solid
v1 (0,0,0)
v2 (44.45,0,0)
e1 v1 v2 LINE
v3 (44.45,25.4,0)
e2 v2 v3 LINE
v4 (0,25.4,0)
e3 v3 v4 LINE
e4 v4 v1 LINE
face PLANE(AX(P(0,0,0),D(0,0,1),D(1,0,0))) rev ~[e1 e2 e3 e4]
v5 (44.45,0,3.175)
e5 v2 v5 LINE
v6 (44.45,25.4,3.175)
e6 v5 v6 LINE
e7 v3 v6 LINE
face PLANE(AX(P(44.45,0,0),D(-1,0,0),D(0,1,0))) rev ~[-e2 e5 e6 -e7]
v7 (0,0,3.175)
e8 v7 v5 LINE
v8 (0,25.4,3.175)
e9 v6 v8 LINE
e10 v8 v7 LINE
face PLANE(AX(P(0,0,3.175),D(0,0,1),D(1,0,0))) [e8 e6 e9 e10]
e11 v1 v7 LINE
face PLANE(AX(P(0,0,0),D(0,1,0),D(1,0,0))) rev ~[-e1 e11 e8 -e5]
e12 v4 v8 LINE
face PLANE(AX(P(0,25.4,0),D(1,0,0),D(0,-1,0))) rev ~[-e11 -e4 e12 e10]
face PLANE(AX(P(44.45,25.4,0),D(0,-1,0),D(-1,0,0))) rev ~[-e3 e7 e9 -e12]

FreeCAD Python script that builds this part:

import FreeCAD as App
import Part
import Sketcher
Q = App.Units.Quantity

doc = App.newDocument("Part")
body = doc.addObject("PartDesign::Body", "Body")

# Sketch on XY plane
sketch1 = body.newObject("Sketcher::SketchObject", "Sketch")
sketch1.AttachmentSupport = (doc.getObject("XY_Plane"), [""])
sketch1.MapMode = "FlatFace"
sketch1.addGeometry([
    Part.LineSegment(App.Vector(0, 25.4, 0), App.Vector(0, 0, 0)),
    Part.LineSegment(App.Vector(0, 0, 0), App.Vector(44.45, 0, 0)),
    Part.LineSegment(App.Vector(44.45, 0, 0), App.Vector(44.45, 25.4, 0)),
    Part.LineSegment(App.Vector(44.45, 25.4, 0), App.Vector(0, 25.4, 0)),
], False)
sketch1.addConstraint([
    Sketcher.Constraint("Coincident", 0, 2, 1, 1),
    Sketcher.Constraint("Coincident", 1, 2, 2, 1),
    Sketcher.Constraint("Coincident", 2, 2, 3, 1),
    Sketcher.Constraint("Coincident", 3, 2, 0, 1),
    Sketcher.Constraint("Vertical", 0),
    Sketcher.Constraint("Horizontal", 1),
    Sketcher.Constraint("Vertical", 2),
    Sketcher.Constraint("Horizontal", 3),
    Sketcher.Constraint("Coincident", 0, 2, -1, 1),
    Sketcher.Constraint("DistanceY", 0, 2, 0, 1, Q("1 in")),
    Sketcher.Constraint("DistanceX", 1, 1, 1, 2, Q("1.75 in")),
])
pad1 = body.newObject("PartDesign::Pad", "Pad")
pad1.Profile = sketch1
pad1.Length = Q("0.125 in")

doc.recompute()
